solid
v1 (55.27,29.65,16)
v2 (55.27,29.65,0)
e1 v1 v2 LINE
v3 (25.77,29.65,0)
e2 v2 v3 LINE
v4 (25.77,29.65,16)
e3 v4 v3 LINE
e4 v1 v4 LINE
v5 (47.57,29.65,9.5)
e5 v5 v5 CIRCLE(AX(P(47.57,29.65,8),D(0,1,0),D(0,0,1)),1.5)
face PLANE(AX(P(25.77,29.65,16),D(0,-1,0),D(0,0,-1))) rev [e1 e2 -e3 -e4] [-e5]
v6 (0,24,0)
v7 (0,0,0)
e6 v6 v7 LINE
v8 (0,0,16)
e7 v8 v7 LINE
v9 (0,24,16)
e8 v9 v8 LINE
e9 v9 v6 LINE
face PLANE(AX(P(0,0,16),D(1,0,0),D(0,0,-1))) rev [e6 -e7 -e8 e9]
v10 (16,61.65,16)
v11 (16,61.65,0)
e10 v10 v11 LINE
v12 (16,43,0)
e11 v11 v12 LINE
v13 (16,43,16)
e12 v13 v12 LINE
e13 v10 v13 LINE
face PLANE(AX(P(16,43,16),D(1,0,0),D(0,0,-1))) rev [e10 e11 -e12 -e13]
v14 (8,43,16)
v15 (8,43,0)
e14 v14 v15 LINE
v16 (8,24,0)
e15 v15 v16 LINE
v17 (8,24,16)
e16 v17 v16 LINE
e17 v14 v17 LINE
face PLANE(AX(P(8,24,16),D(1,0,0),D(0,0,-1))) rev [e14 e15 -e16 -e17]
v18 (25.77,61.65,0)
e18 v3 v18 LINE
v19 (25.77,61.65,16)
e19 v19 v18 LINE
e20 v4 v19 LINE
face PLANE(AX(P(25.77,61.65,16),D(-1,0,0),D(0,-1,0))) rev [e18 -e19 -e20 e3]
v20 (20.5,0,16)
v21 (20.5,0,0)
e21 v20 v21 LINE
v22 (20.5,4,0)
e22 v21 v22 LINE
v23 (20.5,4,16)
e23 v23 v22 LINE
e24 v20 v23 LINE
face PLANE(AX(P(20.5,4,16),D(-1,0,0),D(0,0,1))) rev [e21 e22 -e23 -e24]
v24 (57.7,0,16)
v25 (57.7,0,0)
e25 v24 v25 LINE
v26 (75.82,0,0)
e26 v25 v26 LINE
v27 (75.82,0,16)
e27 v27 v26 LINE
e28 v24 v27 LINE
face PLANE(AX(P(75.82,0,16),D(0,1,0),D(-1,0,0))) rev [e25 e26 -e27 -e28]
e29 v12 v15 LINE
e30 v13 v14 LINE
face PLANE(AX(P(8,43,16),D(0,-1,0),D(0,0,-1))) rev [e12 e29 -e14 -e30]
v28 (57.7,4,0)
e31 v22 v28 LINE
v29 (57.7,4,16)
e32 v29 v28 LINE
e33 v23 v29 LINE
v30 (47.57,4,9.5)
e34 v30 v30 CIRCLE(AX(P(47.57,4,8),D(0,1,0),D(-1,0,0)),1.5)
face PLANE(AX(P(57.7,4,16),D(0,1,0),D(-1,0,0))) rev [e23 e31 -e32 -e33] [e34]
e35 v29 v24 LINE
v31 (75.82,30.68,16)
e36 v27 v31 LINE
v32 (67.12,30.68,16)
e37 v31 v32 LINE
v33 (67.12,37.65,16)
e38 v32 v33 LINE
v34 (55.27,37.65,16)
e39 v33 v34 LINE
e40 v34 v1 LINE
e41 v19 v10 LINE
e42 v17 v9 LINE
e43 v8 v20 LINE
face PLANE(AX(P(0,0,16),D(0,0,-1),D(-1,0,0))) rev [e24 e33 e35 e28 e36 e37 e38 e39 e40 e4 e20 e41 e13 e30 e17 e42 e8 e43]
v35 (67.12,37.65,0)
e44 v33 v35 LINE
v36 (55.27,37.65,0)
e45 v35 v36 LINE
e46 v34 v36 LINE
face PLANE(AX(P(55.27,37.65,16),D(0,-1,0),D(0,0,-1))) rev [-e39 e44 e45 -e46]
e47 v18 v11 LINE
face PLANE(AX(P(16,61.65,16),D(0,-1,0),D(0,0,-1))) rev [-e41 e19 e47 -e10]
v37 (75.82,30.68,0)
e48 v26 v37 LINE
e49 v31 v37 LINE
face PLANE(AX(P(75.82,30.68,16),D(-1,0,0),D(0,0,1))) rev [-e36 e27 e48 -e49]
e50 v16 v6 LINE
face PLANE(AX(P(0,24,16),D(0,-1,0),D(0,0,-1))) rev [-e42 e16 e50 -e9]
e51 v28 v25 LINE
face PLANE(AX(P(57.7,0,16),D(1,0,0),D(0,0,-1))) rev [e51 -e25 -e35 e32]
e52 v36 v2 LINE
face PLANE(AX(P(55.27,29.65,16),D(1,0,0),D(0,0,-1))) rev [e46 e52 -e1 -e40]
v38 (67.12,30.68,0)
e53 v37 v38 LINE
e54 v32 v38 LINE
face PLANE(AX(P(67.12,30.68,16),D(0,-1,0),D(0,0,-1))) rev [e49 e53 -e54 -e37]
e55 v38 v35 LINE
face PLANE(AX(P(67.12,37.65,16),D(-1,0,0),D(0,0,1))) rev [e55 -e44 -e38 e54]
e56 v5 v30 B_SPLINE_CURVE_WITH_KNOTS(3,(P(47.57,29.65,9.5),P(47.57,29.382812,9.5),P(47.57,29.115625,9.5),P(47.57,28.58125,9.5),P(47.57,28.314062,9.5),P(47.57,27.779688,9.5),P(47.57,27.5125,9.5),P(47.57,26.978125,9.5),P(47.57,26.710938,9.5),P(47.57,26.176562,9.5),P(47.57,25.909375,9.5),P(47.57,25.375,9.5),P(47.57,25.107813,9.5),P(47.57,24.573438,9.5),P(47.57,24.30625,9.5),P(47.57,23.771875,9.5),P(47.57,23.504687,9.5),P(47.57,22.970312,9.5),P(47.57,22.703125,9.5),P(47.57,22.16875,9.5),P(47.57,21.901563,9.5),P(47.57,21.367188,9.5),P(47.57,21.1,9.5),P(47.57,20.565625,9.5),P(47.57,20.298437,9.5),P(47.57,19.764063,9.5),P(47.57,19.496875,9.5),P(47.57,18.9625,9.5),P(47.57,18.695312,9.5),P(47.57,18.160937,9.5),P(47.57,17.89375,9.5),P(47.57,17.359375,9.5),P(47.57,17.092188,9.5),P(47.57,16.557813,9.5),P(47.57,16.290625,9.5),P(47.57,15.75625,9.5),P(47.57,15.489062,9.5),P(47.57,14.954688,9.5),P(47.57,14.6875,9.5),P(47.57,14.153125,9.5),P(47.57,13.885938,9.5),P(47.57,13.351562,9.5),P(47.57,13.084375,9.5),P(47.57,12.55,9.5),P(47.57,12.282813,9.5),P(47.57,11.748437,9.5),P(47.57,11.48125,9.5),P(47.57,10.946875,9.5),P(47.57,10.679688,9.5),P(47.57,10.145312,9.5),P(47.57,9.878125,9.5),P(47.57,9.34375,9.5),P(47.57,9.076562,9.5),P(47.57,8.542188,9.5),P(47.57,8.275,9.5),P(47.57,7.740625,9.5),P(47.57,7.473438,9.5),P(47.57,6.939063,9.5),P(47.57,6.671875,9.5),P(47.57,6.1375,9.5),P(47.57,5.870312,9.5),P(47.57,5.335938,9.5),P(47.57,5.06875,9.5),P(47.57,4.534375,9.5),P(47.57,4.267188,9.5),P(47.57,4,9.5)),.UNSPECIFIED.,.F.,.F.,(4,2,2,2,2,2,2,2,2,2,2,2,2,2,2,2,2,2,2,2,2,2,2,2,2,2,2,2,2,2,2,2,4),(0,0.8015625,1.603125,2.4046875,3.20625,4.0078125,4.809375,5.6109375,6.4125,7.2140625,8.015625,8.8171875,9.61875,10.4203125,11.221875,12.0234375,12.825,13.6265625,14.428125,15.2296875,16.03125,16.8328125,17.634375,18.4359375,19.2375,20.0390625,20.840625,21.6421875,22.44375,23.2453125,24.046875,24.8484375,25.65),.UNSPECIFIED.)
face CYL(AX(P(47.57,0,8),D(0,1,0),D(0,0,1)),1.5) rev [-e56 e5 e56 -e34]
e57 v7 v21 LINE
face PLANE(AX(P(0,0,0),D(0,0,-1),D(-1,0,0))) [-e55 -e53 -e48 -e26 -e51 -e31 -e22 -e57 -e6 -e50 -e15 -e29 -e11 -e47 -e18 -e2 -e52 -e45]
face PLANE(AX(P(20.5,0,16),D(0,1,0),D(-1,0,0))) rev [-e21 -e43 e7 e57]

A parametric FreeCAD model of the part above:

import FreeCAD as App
import Part
import Sketcher

V = App.Vector
Q = App.Units.Quantity

doc = App.newDocument("Part")
body = doc.addObject("PartDesign::Body", "Body")

# Sketch on XY plane
sketch1 = body.newObject("Sketcher::SketchObject", "Sketch")
sketch1.AttachmentSupport = (doc.getObject("XY_Plane"), [""])
sketch1.MapMode = "FlatFace"
sketch1.addGeometry([
    Part.LineSegment(V(0, 24, 0), V(0, 0, 0)),  # 0
    Part.LineSegment(V(0, 0, 0), V(20.5, 0, 0)),  # 1
    Part.LineSegment(V(20.5, 0, 0), V(20.5, 4, 0)),  # 2
    Part.LineSegment(V(20.5, 4, 0), V(57.7, 4, 0)),  # 3
    Part.LineSegment(V(57.7, 4, 0), V(57.7, 0, 0)),  # 4
    Part.LineSegment(V(57.7, 0, 0), V(75.8, 0, 0)),  # 5
    Part.LineSegment(V(75.8, 0, 0), V(75.8, 30.7, 0)),  # 6
    Part.LineSegment(V(75.8, 30.7, 0), V(67.1, 30.7, 0)),  # 7
    Part.LineSegment(V(67.1, 30.7, 0), V(67.1, 37.6, 0)),  # 8
    Part.LineSegment(V(67.1, 37.6, 0), V(55.3, 37.6, 0)),  # 9
    Part.LineSegment(V(55.3, 37.6, 0), V(55.3, 29.6, 0)),  # 10
    Part.LineSegment(V(55.3, 29.6, 0), V(25.8, 29.6, 0)),  # 11
    Part.LineSegment(V(25.8, 29.6, 0), V(25.8, 61.6, 0)),  # 12
    Part.LineSegment(V(25.8, 61.6, 0), V(16, 61.6, 0)),  # 13
    Part.LineSegment(V(16, 61.6, 0), V(16, 43, 0)),  # 14
    Part.LineSegment(V(16, 43, 0), V(8, 43, 0)),  # 15
    Part.LineSegment(V(8, 43, 0), V(8, 24, 0)),  # 16
    Part.LineSegment(V(8, 24, 0), V(0, 24, 0)),  # 17
], False)
sketch1.addConstraint([
    Sketcher.Constraint("Coincident", 0, 2, 1, 1),
    Sketcher.Constraint("Coincident", 1, 2, 2, 1),
    Sketcher.Constraint("Coincident", 2, 2, 3, 1),
    Sketcher.Constraint("Coincident", 3, 2, 4, 1),
    Sketcher.Constraint("Coincident", 4, 2, 5, 1),
    Sketcher.Constraint("Coincident", 5, 2, 6, 1),
    Sketcher.Constraint("Coincident", 6, 2, 7, 1),
    Sketcher.Constraint("Coincident", 7, 2, 8, 1),
    Sketcher.Constraint("Coincident", 8, 2, 9, 1),
    Sketcher.Constraint("Coincident", 9, 2, 10, 1),
    Sketcher.Constraint("Coincident", 10, 2, 11, 1),
    Sketcher.Constraint("Coincident", 11, 2, 12, 1),
    Sketcher.Constraint("Coincident", 12, 2, 13, 1),
    Sketcher.Constraint("Coincident", 13, 2, 14, 1),
    Sketcher.Constraint("Coincident", 14, 2, 15, 1),
    Sketcher.Constraint("Coincident", 15, 2, 16, 1),
    Sketcher.Constraint("Coincident", 16, 2, 17, 1),
    Sketcher.Constraint("Coincident", 17, 2, 0, 1),
    Sketcher.Constraint("Vertical", 0),
    Sketcher.Constraint("Horizontal", 1),
    Sketcher.Constraint("Vertical", 2),
    Sketcher.Constraint("Horizontal", 3),
    Sketcher.Constraint("Vertical", 4),
    Sketcher.Constraint("Horizontal", 5),
    Sketcher.Constraint("Vertical", 6),
    Sketcher.Constraint("Horizontal", 7),
    Sketcher.Constraint("Vertical", 8),
    Sketcher.Constraint("Horizontal", 9),
    Sketcher.Constraint("Vertical", 10),
    Sketcher.Constraint("Horizontal", 11),
    Sketcher.Constraint("Vertical", 12),
    Sketcher.Constraint("Horizontal", 13),
    Sketcher.Constraint("Vertical", 14),
    Sketcher.Constraint("Horizontal", 15),
    Sketcher.Constraint("Vertical", 16),
    Sketcher.Constraint("Horizontal", 17),
    Sketcher.Constraint("Coincident", 0, 2, -1, 1),
    Sketcher.Constraint("PointOnObject", 4, 2, -1),
    Sketcher.Constraint("Equal", 15, 17),
    Sketcher.Constraint("Equal", 17, 10),
    Sketcher.Constraint("DistanceX", 15, 2, 15, 1, Q("8 mm")),
    Sketcher.Constraint("DistanceY", 0, 2, 0, 1, Q("24 mm")),
    Sketcher.Constraint("DistanceY", 2, 1, 2, 2, Q("4 mm")),
    Sketcher.Constraint("DistanceY", 12, 1, 12, 2, Q("32 mm")),
    Sketcher.Constraint("DistanceY", 16, 2, 16, 1, Q("19 mm")),
    Sketcher.Constraint("DistanceX", 1, 1, 1, 2, Q("20.5 mm")),
    Sketcher.Constraint("DistanceX", 3, 1, 3, 2, Q("37.2 mm")),
    Sketcher.Constraint("DistanceX", 7, 2, 7, 1, Q("8.7 mm")),
    Sketcher.Constraint("DistanceX", 11, 2, 11, 1, Q("29.5 mm")),
    Sketcher.Constraint("DistanceX", 5, 1, 5, 2, Q("18.12 mm")),
    Sketcher.Constraint("DistanceX", 9, 2, 9, 1, Q("11.85 mm")),
    Sketcher.Constraint("DistanceY", 6, 1, 6, 2, Q("30.68 mm")),
    Sketcher.Constraint("DistanceY", 8, 1, 8, 2, Q("6.97 mm")),
])
pad1 = body.newObject("PartDesign::Pad", "Pad")
pad1.Profile = sketch1
pad1.Length = 16

# Sketch on XZ plane
sketch2 = body.newObject("Sketcher::SketchObject", "Sketch001")
sketch2.AttachmentSupport = (doc.getObject("XZ_Plane"), [""])
sketch2.MapMode = "FlatFace"
sketch2.AttachmentOffset = App.Placement(V(0, 0, -29.65), App.Rotation())
sketch2.addGeometry(Part.Circle(V(47.6, 8, 0), V(0, 0, 1), 1.5), False)
sketch2.addConstraint([
    Sketcher.Constraint("Diameter", 0, Q("3 mm")),
    Sketcher.Constraint("DistanceY", -1, 1, 0, 3, Q("8 mm")),
    Sketcher.Constraint("DistanceX", -1, 1, 0, 3, Q("47.57 mm")),
])
pocket1 = body.newObject("PartDesign::Pocket", "Pocket")
pocket1.Profile = sketch2
pocket1.Type = "ThroughAll"
pocket1.Reversed = True

doc.recompute()
